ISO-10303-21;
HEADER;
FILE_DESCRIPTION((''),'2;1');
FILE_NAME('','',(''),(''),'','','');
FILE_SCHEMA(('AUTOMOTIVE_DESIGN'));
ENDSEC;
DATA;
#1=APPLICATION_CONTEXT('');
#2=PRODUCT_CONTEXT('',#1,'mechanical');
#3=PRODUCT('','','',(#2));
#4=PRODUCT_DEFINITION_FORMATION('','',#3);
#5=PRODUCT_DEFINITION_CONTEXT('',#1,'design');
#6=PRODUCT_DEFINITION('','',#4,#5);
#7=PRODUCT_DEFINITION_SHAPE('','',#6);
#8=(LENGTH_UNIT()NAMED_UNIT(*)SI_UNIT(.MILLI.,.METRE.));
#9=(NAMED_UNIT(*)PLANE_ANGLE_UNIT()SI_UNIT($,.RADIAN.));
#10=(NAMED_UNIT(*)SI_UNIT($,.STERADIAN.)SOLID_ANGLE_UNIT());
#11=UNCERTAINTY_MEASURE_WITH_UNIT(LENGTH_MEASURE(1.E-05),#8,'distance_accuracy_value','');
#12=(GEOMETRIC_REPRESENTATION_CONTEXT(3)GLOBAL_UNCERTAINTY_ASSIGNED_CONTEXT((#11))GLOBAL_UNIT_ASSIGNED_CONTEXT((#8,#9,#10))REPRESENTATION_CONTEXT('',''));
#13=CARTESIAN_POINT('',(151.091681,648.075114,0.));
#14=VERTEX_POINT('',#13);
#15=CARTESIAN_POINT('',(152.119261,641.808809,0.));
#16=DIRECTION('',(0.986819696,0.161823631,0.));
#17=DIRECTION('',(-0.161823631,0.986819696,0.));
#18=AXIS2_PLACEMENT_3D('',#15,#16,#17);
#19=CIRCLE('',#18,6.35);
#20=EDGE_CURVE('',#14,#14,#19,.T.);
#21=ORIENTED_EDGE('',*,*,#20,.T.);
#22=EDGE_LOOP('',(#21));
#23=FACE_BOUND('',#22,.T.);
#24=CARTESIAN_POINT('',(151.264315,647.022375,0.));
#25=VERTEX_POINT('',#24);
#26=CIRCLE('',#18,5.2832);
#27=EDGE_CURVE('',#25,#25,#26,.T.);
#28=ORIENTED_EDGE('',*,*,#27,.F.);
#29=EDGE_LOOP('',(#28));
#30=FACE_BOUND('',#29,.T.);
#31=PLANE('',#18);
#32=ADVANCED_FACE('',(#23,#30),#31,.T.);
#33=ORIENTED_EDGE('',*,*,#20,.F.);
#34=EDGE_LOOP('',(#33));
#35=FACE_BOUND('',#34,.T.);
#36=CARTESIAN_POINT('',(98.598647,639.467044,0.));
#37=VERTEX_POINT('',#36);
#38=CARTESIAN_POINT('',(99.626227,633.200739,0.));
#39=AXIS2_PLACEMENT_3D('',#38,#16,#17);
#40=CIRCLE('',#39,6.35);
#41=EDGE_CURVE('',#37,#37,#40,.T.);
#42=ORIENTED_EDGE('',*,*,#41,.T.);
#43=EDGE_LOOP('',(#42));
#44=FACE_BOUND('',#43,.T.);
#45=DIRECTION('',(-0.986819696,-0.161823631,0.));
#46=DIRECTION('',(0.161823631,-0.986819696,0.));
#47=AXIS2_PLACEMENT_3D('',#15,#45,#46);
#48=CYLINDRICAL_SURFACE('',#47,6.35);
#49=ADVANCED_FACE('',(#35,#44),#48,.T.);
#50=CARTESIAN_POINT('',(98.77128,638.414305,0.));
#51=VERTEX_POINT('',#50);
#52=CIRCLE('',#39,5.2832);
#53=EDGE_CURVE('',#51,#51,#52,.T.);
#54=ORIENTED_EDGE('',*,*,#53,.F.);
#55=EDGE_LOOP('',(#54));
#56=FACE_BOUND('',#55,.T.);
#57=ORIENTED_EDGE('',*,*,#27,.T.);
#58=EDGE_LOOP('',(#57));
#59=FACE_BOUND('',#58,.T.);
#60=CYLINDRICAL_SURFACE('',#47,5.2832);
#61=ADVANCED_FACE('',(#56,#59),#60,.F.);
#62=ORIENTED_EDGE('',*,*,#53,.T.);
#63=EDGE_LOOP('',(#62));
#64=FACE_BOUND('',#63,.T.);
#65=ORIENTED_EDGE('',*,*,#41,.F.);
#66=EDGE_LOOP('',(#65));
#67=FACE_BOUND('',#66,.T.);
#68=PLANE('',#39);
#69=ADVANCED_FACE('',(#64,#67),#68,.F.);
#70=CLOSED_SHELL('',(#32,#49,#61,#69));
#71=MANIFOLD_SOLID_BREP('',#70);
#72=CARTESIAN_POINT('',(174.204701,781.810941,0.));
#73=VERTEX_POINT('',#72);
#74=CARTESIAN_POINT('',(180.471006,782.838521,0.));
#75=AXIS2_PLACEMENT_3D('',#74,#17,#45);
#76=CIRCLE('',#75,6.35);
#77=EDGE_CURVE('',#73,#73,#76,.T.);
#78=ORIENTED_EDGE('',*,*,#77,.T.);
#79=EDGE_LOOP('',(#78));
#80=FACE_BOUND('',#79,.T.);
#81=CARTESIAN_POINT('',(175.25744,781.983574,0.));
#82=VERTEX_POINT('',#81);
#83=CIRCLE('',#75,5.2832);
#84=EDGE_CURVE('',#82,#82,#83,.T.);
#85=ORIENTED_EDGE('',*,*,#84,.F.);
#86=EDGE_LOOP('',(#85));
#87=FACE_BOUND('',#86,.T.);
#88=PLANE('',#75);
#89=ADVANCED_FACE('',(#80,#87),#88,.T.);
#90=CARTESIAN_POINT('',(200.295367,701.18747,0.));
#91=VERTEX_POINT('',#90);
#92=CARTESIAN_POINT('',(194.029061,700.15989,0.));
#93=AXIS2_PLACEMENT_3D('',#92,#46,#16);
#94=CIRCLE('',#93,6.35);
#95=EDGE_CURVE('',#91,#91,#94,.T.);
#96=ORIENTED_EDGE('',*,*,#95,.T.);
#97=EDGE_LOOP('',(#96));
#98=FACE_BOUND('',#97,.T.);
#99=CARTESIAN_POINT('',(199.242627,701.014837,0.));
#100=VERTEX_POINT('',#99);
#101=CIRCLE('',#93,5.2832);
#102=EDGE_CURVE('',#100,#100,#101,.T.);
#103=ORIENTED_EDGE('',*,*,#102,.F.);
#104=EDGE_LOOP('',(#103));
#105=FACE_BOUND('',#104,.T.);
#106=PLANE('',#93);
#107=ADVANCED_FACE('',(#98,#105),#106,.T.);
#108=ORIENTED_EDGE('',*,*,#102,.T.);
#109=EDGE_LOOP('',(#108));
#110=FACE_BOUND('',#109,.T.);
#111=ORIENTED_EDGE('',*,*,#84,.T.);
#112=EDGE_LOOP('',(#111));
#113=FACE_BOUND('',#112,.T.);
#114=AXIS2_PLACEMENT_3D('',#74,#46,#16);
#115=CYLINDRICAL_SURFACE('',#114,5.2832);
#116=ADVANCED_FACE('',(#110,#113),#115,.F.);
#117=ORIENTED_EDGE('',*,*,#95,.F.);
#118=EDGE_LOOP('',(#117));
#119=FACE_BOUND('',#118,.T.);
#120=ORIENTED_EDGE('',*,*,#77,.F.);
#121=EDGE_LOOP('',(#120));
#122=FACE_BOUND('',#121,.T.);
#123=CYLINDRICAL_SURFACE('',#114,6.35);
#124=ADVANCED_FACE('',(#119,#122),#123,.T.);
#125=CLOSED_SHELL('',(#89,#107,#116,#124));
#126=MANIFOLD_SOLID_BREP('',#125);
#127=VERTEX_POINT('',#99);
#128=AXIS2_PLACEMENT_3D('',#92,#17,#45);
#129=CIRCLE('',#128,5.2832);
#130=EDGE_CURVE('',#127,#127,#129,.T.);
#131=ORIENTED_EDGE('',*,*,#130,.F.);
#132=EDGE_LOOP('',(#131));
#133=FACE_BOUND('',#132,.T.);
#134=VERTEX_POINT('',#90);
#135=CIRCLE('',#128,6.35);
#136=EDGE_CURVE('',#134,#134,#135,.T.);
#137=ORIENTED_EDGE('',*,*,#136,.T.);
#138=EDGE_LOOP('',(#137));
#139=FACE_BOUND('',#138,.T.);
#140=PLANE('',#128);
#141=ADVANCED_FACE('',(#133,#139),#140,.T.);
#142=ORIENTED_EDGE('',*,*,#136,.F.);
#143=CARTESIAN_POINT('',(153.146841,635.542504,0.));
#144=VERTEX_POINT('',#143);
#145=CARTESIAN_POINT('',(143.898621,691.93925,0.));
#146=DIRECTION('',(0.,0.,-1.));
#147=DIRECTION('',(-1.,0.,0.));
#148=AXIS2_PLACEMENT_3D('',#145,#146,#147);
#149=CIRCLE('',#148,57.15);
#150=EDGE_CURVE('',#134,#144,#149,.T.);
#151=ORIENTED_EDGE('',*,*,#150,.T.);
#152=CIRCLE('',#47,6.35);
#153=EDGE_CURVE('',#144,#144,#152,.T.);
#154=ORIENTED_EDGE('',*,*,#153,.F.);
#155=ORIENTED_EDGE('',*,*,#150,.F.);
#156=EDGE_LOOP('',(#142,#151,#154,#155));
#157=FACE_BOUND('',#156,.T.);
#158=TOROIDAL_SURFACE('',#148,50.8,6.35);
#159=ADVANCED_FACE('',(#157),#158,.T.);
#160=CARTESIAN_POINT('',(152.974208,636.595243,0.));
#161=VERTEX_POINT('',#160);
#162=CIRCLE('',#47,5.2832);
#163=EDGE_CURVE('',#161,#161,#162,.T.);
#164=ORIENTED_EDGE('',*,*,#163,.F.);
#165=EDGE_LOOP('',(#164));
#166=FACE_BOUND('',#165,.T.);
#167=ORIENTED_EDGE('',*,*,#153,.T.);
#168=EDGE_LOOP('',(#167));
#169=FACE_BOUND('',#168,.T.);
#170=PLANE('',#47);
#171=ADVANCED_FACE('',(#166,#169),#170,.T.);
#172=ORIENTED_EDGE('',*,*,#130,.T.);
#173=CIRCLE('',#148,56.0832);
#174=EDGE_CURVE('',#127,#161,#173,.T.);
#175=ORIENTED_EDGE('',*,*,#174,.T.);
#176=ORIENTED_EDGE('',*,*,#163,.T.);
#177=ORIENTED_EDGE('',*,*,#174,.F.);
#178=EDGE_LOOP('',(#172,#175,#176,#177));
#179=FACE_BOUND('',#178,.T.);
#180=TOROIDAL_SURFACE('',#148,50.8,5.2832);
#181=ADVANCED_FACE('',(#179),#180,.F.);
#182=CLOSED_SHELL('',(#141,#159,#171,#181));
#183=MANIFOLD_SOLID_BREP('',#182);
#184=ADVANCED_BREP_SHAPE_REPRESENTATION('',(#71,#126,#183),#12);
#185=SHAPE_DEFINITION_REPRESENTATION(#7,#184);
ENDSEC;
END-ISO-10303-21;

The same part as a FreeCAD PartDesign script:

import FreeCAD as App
import Part
import Sketcher
from FreeCAD import Vector
Q = App.Units.Quantity

doc = App.newDocument("Part")
body = doc.addObject("PartDesign::Body", "Body")

# Sketch on an angled plane
sketch1 = doc.addObject("Sketcher::SketchObject", "Sketch")
body.addObject(sketch1)
sketch1.Placement = App.Placement(Vector(99.626227, 633.200739, 0), App.Rotation(Vector(-0.161823631, 0.986819696, 0), Vector(0, 0, 1), Vector(0.986819696, 0.161823631, 0), "ZXY"))
sketch1.addGeometry([
    Part.Circle(Vector(0, 0, 0), Vector(0, 0, 1), 6.35),
    Part.Circle(Vector(0, 0, 0), Vector(0, 0, 1), 5.2832),
], False)
sketch1.addConstraint([
    Sketcher.Constraint("Coincident", 0, 3, -1, 1),
    Sketcher.Constraint("Coincident", 1, 3, -1, 1),
    Sketcher.Constraint("Diameter", 0, Q("0.5 in")),
    Sketcher.Constraint("Diameter", 1, Q("0.416 in")),
])
pad1 = doc.addObject("PartDesign::Pad", "Pad")
body.addObject(pad1)
pad1.Profile = sketch1
pad1.Length = 53.19415
body2 = doc.addObject("PartDesign::Body", "Body001")

# Sketch on an angled plane
sketch2 = doc.addObject("Sketcher::SketchObject", "Sketch001")
body2.addObject(sketch2)
sketch2.Placement = App.Placement(Vector(152.119261, 641.808809, 0), App.Rotation(Vector(-0.161823631, 0.986819696, 0), Vector(0, 0, 1), Vector(0.986819696, 0.161823631, 0), "ZXY"))
sketch2.addGeometry([
    Part.Circle(Vector(0, 0, 0), Vector(0, 0, 1), 6.35),
    Part.Circle(Vector(0, 0, 0), Vector(0, 0, 1), 5.2832),
], False)
sketch2.addGeometry(Part.LineSegment(Vector(50.8, 0, 0), Vector(50.8, 10, 0)), True)  # axis
sketch2.addConstraint([
    Sketcher.Constraint("Vertical", 2),
    Sketcher.Constraint("Coincident", 0, 3, -1, 1),
    Sketcher.Constraint("Coincident", 1, 3, -1, 1),
    Sketcher.Constraint("PointOnObject", 2, 1, -1),
    Sketcher.Constraint("Diameter", 0, Q("0.5 in")),
    Sketcher.Constraint("Diameter", 1, Q("0.416 in")),
    Sketcher.Constraint("DistanceX", -1, 1, 2, 1, Q("2 in")),
    Sketcher.Constraint("DistanceY", 2, 1, 2, 2, 10.0),
])
revolution = doc.addObject("PartDesign::Revolution", "Revolution")
body2.addObject(revolution)
revolution.Profile = sketch2
revolution.ReferenceAxis = (sketch2, ["Axis0"])
revolution.Angle = 90
body3 = doc.addObject("PartDesign::Body", "Body002")

# Sketch on an angled plane
sketch3 = doc.addObject("Sketcher::SketchObject", "Sketch002")
body3.addObject(sketch3)
sketch3.Placement = App.Placement(Vector(194.029061, 700.15989, 0), App.Rotation(Vector(-0.986819696, -0.161823631, 0), Vector(0, 0, 1), Vector(-0.161823631, 0.986819696, 0), "ZXY"))
sketch3.addGeometry([
    Part.Circle(Vector(0, 0, 0), Vector(0, 0, 1), 6.35),
    Part.Circle(Vector(0, 0, 0), Vector(0, 0, 1), 5.2832),
], False)
sketch3.addConstraint([
    Sketcher.Constraint("Coincident", 0, 3, -1, 1),
    Sketcher.Constraint("Coincident", 1, 3, -1, 1),
    Sketcher.Constraint("Diameter", 0, Q("0.5 in")),
    Sketcher.Constraint("Diameter", 1, Q("0.416 in")),
])
pad2 = doc.addObject("PartDesign::Pad", "Pad001")
body3.addObject(pad2)
pad2.Profile = sketch3
pad2.Length = 83.782915

doc.recompute()
